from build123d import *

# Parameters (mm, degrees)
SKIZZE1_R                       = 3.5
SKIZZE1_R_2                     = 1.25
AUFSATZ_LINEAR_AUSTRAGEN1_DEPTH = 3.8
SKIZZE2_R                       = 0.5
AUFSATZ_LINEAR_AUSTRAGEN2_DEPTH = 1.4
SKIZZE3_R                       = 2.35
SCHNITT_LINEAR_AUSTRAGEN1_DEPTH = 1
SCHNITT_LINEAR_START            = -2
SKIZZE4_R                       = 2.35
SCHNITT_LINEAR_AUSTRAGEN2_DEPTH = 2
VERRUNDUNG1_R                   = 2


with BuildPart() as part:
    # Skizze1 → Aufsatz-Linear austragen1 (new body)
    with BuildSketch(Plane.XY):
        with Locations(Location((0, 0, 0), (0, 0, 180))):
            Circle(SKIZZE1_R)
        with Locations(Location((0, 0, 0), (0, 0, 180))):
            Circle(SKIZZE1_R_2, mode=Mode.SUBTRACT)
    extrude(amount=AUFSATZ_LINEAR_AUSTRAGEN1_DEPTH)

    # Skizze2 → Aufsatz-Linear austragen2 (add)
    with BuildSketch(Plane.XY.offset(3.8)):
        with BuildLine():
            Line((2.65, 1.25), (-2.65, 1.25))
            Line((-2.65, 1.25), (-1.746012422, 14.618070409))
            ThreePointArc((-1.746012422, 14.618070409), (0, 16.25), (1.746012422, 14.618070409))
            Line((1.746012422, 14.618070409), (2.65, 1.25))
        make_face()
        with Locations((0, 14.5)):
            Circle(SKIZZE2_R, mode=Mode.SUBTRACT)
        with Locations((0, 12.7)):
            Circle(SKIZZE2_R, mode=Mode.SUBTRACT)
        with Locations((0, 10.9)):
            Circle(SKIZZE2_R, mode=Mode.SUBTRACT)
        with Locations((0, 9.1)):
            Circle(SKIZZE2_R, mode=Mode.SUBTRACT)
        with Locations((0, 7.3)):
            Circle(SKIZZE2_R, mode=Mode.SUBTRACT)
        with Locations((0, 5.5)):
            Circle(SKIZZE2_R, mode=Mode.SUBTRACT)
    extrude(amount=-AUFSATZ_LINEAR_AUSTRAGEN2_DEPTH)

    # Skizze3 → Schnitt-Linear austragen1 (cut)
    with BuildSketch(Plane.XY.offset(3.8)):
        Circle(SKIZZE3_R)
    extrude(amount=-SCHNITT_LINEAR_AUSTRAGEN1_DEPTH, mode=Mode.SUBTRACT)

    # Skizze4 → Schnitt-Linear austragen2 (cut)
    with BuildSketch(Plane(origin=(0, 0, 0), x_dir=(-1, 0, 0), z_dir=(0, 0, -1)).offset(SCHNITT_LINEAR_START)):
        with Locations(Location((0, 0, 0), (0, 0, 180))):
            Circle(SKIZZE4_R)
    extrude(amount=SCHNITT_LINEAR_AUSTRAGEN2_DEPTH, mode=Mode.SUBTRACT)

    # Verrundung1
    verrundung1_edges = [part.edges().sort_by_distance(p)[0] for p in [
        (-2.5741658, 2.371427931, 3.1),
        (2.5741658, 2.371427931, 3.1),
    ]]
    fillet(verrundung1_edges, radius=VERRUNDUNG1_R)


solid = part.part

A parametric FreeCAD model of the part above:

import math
import FreeCAD as App
import Part
import Sketcher
Q = App.Units.Quantity


def edges_at(feature, points):
    """Names of the edges that pass closest to the given points."""
    edges = feature.Shape.Edges
    near = lambda p: min(range(len(edges)), key=lambda i: edges[i].distToShape(Part.Vertex(*p))[0])
    return sorted({f"Edge{near(p) + 1}" for p in points})

doc = App.newDocument("Part")
body = doc.addObject("PartDesign::Body", "Body")

# Sketch on XY plane
sketch1 = doc.addObject("Sketcher::SketchObject", "Sketch")
body.addObject(sketch1)
sketch1.AttachmentSupport = (doc.XY_Plane, [""])
sketch1.MapMode = "FlatFace"
sketch1.addGeometry([
    Part.Circle(App.Vector(0, 0, 0), App.Vector(0, 0, 1), 3.5),
    Part.Circle(App.Vector(0, 0, 0), App.Vector(0, 0, 1), 1.25),
], False)
sketch1.addConstraint([
    Sketcher.Constraint("Coincident", 0, 3, -1, 1),
    Sketcher.Constraint("Coincident", 1, 3, -1, 1),
    Sketcher.Constraint("Diameter", 0, Q("7 mm")),
    Sketcher.Constraint("Diameter", 1, Q("2.5 mm")),
])
pad1 = doc.addObject("PartDesign::Pad", "Pad")
body.addObject(pad1)
pad1.Profile = sketch1
pad1.Length = 3.8

# Sketch on XY plane
sketch2 = doc.addObject("Sketcher::SketchObject", "Sketch001")
body.addObject(sketch2)
sketch2.AttachmentSupport = (doc.XY_Plane, [""])
sketch2.MapMode = "FlatFace"
sketch2.AttachmentOffset = App.Placement(App.Vector(0, 0, 3.8), App.Rotation())
sketch2.addGeometry([
    Part.LineSegment(App.Vector(-2.65, 1.25, 0), App.Vector(2.65, 1.25, 0)),  # 0
    Part.LineSegment(App.Vector(2.65, 1.25, 0), App.Vector(1.746012, 14.61807, 0)),  # 1
    Part.ArcOfCircle(Part.Circle(App.Vector(0, 14.5, 0), App.Vector(0, 0, 1), 1.75), math.radians(3.868617), math.radians(176.131383)),  # 2
    Part.LineSegment(App.Vector(-1.746012, 14.61807, 0), App.Vector(-2.65, 1.25, 0)),  # 3
    Part.Circle(App.Vector(0, 5.5, 0), App.Vector(0, 0, 1), 0.5),  # 4
    Part.Circle(App.Vector(0, 7.3, 0), App.Vector(0, 0, 1), 0.5),  # 5
    Part.Circle(App.Vector(0, 9.1, 0), App.Vector(0, 0, 1), 0.5),  # 6
    Part.Circle(App.Vector(0, 10.9, 0), App.Vector(0, 0, 1), 0.5),  # 7
    Part.Circle(App.Vector(0, 12.7, 0), App.Vector(0, 0, 1), 0.5),  # 8
    Part.Circle(App.Vector(0, 14.5, 0), App.Vector(0, 0, 1), 0.5),  # 9
], False)
sketch2.addConstraint([
    Sketcher.Constraint("Coincident", 0, 2, 1, 1),
    Sketcher.Constraint("Tangent", 1, 2, 2, 1),
    Sketcher.Constraint("Tangent", 2, 2, 3, 1),
    Sketcher.Constraint("Coincident", 3, 2, 0, 1),
    Sketcher.Constraint("Horizontal", 0),
    Sketcher.Constraint("Coincident", 9, 3, 2, 3),
    Sketcher.Constraint("Equal", 4, 5),
    Sketcher.Constraint("Equal", 5, 6),
    Sketcher.Constraint("Equal", 6, 7),
    Sketcher.Constraint("Equal", 7, 8),
    Sketcher.Constraint("Equal", 8, 9),
    Sketcher.Constraint("Symmetric", 1, 2, 2, 2, -2),
    Sketcher.Constraint("PointOnObject", 4, 3, -2),
    Sketcher.Constraint("PointOnObject", 5, 3, -2),
    Sketcher.Constraint("PointOnObject", 6, 3, -2),
    Sketcher.Constraint("PointOnObject", 7, 3, -2),
    Sketcher.Constraint("PointOnObject", 8, 3, -2),
    Sketcher.Constraint("Diameter", 4, Q("1 mm")),
    Sketcher.Constraint("Radius", 2, Q("1.75 mm")),
    Sketcher.Constraint("DistanceX", 0, 1, 0, 2, Q("5.3 mm")),
    Sketcher.Constraint("DistanceY", 4, 3, 2, 3, Q("9 mm")),
    Sketcher.Constraint("DistanceY", -1, 1, 2, 3, Q("14.5 mm")),
    Sketcher.Constraint("DistanceY", -1, 1, 5, 3, Q("7.3 mm")),
    Sketcher.Constraint("DistanceY", -1, 1, 6, 3, Q("9.1 mm")),
    Sketcher.Constraint("DistanceY", -1, 1, 7, 3, Q("10.9 mm")),
    Sketcher.Constraint("DistanceY", -1, 1, 8, 3, Q("12.7 mm")),
    Sketcher.Constraint("DistanceY", -1, 1, 0, 2, Q("1.25 mm")),
])
pad2 = doc.addObject("PartDesign::Pad", "Pad001")
body.addObject(pad2)
pad2.Profile = sketch2
pad2.Length = 1.4
pad2.Reversed = True

# Sketch on XY plane
sketch3 = doc.addObject("Sketcher::SketchObject", "Sketch002")
body.addObject(sketch3)
sketch3.AttachmentSupport = (doc.XY_Plane, [""])
sketch3.MapMode = "FlatFace"
sketch3.AttachmentOffset = App.Placement(App.Vector(0, 0, 3.8), App.Rotation())
sketch3.addGeometry(Part.Circle(App.Vector(0, 0, 0), App.Vector(0, 0, 1), 2.35), False)
sketch3.addConstraint([
    Sketcher.Constraint("Coincident", 0, 3, -1, 1),
    Sketcher.Constraint("Diameter", 0, Q("4.7 mm")),
])
pocket1 = doc.addObject("PartDesign::Pocket", "Pocket")
body.addObject(pocket1)
pocket1.Profile = sketch3
pocket1.Length = 1

# Sketch on XY plane
sketch4 = doc.addObject("Sketcher::SketchObject", "Sketch003")
body.addObject(sketch4)
sketch4.AttachmentSupport = (doc.XY_Plane, [""])
sketch4.MapMode = "FlatFace"
sketch4.AttachmentOffset = App.Placement(App.Vector(0, 0, 2), App.Rotation())
sketch4.addGeometry(Part.Circle(App.Vector(0, 0, 0), App.Vector(0, 0, 1), 2.35), False)
sketch4.addConstraint([
    Sketcher.Constraint("Coincident", 0, 3, -1, 1),
    Sketcher.Constraint("Diameter", 0, Q("4.7 mm")),
])
pocket2 = doc.addObject("PartDesign::Pocket", "Pocket001")
body.addObject(pocket2)
pocket2.Profile = sketch4
pocket2.Length = 2
doc.recompute()

fillet = doc.addObject("PartDesign::Fillet", "Fillet")
body.addObject(fillet)
fillet.Base = (pocket2, edges_at(pocket2, [(-2.574, 2.371, 3.1), (2.574, 2.371, 3.1)]))
fillet.Radius = 2

doc.recompute()
